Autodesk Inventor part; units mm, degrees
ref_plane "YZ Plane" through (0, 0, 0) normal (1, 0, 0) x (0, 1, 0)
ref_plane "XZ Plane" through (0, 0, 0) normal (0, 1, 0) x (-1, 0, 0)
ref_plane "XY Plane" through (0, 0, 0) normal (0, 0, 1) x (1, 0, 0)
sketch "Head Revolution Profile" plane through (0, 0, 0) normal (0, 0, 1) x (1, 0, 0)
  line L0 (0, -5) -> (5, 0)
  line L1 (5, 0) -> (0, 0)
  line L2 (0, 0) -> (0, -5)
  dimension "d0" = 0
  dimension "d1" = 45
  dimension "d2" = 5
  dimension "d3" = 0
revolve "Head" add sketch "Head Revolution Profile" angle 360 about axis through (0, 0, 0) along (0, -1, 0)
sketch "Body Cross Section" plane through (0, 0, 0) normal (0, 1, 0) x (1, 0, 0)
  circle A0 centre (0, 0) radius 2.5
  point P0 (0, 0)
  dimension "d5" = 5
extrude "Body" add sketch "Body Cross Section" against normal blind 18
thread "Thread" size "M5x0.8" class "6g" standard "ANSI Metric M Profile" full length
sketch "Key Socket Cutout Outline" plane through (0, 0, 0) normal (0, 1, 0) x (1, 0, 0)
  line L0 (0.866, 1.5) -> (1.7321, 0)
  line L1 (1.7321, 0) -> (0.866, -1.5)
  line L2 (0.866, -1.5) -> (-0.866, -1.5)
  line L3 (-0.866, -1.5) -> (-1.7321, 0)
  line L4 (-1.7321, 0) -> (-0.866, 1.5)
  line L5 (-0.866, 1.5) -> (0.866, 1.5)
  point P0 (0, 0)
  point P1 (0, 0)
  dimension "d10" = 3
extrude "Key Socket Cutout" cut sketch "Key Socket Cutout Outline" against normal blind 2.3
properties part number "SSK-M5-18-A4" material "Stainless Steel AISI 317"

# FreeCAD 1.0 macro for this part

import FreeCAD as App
import Part
import Sketcher

V = App.Vector
Q = App.Units.Quantity


def add_polygon(sketch, points):
    """Adds a closed chain of lines whose ends are joined by coincident constraints."""
    first, n = sketch.GeometryCount, len(points)
    for a, b in zip(points, points[1:] + points[:1]):
        sketch.addGeometry(Part.LineSegment(App.Vector(*a, 0), App.Vector(*b, 0)), False)
    for i in range(n):
        sketch.addConstraint(Sketcher.Constraint("Coincident", first + i, 2, first + (i + 1) % n, 1))

doc = App.newDocument("Part")
body = doc.addObject("PartDesign::Body", "Body")

sketch1 = body.newObject("Sketcher::SketchObject", "Sketch")
sketch1.AttachmentSupport = (doc.getObject("XY_Plane"), [""])
sketch1.MapMode = "FlatFace"
add_polygon(sketch1, [(0, 0), (0, -5), (5, 0)])
sketch1.addConstraint(Sketcher.Constraint("Vertical", 0))
sketch1.addConstraint(Sketcher.Constraint("Horizontal", 2))
sketch1.addConstraint(Sketcher.Constraint("Coincident", 2, 2, -1, 1))
sketch1.addConstraint(Sketcher.Constraint("Equal", 2, 0))
sketch1.addConstraint(Sketcher.Constraint("DistanceX", 2, 2, 2, 1, Q("5 mm")))
revolution = body.newObject("PartDesign::Revolution", "Revolution")
revolution.Profile = sketch1
revolution.ReferenceAxis = (sketch1, ["V_Axis"])
revolution.Angle = 360

sketch2 = body.newObject("Sketcher::SketchObject", "Sketch001")
sketch2.AttachmentSupport = (doc.getObject("XZ_Plane"), [""])
sketch2.MapMode = "FlatFace"
sketch2.addGeometry(Part.Circle(V(0, 0, 0), V(0, 0, 1), 2.5), False)
sketch2.addConstraint(Sketcher.Constraint("Coincident", 0, 3, -1, 1))
sketch2.addConstraint(Sketcher.Constraint("Diameter", 0, Q("5 mm")))
pad1 = body.newObject("PartDesign::Pad", "Pad")
pad1.Profile = sketch2
pad1.Length = 18

sketch3 = body.newObject("Sketcher::SketchObject", "Sketch002")
sketch3.AttachmentSupport = (doc.getObject("XZ_Plane"), [""])
sketch3.MapMode = "FlatFace"
add_polygon(sketch3, [(1.7321, 0), (0.866, -1.5), (-0.866, -1.5), (-1.7321, 0), (-0.866, 1.5), (0.866, 1.5)])
sketch3.addConstraint(Sketcher.Constraint("Horizontal", 1))
sketch3.addConstraint(Sketcher.Constraint("Horizontal", 4))
sketch3.addConstraint(Sketcher.Constraint("Symmetric", 0, 2, 3, 2, -1, 1))
sketch3.addConstraint(Sketcher.Constraint("Symmetric", 2, 2, 5, 2, -1, 1))
sketch3.addConstraint(Sketcher.Constraint("PointOnObject", 2, 2, -1))
sketch3.addConstraint(Sketcher.Constraint("Parallel", 2, 5))
sketch3.addConstraint(Sketcher.Constraint("Vertical", 1, 2, 3, 2))
sketch3.addConstraint(Sketcher.Constraint("DistanceY", 1, 2, 3, 2, Q("3 mm")))
sketch3.addConstraint(Sketcher.Constraint("DistanceX", 1, 2, 1, 1, Q("1.732 mm")))
sketch3.addConstraint(Sketcher.Constraint("Distance", 0, Q("1.732 mm")))
pocket1 = body.newObject("PartDesign::Pocket", "Pocket")
pocket1.Profile = sketch3
pocket1.Length = 2.3
pocket1.Reversed = True

doc.recompute()
